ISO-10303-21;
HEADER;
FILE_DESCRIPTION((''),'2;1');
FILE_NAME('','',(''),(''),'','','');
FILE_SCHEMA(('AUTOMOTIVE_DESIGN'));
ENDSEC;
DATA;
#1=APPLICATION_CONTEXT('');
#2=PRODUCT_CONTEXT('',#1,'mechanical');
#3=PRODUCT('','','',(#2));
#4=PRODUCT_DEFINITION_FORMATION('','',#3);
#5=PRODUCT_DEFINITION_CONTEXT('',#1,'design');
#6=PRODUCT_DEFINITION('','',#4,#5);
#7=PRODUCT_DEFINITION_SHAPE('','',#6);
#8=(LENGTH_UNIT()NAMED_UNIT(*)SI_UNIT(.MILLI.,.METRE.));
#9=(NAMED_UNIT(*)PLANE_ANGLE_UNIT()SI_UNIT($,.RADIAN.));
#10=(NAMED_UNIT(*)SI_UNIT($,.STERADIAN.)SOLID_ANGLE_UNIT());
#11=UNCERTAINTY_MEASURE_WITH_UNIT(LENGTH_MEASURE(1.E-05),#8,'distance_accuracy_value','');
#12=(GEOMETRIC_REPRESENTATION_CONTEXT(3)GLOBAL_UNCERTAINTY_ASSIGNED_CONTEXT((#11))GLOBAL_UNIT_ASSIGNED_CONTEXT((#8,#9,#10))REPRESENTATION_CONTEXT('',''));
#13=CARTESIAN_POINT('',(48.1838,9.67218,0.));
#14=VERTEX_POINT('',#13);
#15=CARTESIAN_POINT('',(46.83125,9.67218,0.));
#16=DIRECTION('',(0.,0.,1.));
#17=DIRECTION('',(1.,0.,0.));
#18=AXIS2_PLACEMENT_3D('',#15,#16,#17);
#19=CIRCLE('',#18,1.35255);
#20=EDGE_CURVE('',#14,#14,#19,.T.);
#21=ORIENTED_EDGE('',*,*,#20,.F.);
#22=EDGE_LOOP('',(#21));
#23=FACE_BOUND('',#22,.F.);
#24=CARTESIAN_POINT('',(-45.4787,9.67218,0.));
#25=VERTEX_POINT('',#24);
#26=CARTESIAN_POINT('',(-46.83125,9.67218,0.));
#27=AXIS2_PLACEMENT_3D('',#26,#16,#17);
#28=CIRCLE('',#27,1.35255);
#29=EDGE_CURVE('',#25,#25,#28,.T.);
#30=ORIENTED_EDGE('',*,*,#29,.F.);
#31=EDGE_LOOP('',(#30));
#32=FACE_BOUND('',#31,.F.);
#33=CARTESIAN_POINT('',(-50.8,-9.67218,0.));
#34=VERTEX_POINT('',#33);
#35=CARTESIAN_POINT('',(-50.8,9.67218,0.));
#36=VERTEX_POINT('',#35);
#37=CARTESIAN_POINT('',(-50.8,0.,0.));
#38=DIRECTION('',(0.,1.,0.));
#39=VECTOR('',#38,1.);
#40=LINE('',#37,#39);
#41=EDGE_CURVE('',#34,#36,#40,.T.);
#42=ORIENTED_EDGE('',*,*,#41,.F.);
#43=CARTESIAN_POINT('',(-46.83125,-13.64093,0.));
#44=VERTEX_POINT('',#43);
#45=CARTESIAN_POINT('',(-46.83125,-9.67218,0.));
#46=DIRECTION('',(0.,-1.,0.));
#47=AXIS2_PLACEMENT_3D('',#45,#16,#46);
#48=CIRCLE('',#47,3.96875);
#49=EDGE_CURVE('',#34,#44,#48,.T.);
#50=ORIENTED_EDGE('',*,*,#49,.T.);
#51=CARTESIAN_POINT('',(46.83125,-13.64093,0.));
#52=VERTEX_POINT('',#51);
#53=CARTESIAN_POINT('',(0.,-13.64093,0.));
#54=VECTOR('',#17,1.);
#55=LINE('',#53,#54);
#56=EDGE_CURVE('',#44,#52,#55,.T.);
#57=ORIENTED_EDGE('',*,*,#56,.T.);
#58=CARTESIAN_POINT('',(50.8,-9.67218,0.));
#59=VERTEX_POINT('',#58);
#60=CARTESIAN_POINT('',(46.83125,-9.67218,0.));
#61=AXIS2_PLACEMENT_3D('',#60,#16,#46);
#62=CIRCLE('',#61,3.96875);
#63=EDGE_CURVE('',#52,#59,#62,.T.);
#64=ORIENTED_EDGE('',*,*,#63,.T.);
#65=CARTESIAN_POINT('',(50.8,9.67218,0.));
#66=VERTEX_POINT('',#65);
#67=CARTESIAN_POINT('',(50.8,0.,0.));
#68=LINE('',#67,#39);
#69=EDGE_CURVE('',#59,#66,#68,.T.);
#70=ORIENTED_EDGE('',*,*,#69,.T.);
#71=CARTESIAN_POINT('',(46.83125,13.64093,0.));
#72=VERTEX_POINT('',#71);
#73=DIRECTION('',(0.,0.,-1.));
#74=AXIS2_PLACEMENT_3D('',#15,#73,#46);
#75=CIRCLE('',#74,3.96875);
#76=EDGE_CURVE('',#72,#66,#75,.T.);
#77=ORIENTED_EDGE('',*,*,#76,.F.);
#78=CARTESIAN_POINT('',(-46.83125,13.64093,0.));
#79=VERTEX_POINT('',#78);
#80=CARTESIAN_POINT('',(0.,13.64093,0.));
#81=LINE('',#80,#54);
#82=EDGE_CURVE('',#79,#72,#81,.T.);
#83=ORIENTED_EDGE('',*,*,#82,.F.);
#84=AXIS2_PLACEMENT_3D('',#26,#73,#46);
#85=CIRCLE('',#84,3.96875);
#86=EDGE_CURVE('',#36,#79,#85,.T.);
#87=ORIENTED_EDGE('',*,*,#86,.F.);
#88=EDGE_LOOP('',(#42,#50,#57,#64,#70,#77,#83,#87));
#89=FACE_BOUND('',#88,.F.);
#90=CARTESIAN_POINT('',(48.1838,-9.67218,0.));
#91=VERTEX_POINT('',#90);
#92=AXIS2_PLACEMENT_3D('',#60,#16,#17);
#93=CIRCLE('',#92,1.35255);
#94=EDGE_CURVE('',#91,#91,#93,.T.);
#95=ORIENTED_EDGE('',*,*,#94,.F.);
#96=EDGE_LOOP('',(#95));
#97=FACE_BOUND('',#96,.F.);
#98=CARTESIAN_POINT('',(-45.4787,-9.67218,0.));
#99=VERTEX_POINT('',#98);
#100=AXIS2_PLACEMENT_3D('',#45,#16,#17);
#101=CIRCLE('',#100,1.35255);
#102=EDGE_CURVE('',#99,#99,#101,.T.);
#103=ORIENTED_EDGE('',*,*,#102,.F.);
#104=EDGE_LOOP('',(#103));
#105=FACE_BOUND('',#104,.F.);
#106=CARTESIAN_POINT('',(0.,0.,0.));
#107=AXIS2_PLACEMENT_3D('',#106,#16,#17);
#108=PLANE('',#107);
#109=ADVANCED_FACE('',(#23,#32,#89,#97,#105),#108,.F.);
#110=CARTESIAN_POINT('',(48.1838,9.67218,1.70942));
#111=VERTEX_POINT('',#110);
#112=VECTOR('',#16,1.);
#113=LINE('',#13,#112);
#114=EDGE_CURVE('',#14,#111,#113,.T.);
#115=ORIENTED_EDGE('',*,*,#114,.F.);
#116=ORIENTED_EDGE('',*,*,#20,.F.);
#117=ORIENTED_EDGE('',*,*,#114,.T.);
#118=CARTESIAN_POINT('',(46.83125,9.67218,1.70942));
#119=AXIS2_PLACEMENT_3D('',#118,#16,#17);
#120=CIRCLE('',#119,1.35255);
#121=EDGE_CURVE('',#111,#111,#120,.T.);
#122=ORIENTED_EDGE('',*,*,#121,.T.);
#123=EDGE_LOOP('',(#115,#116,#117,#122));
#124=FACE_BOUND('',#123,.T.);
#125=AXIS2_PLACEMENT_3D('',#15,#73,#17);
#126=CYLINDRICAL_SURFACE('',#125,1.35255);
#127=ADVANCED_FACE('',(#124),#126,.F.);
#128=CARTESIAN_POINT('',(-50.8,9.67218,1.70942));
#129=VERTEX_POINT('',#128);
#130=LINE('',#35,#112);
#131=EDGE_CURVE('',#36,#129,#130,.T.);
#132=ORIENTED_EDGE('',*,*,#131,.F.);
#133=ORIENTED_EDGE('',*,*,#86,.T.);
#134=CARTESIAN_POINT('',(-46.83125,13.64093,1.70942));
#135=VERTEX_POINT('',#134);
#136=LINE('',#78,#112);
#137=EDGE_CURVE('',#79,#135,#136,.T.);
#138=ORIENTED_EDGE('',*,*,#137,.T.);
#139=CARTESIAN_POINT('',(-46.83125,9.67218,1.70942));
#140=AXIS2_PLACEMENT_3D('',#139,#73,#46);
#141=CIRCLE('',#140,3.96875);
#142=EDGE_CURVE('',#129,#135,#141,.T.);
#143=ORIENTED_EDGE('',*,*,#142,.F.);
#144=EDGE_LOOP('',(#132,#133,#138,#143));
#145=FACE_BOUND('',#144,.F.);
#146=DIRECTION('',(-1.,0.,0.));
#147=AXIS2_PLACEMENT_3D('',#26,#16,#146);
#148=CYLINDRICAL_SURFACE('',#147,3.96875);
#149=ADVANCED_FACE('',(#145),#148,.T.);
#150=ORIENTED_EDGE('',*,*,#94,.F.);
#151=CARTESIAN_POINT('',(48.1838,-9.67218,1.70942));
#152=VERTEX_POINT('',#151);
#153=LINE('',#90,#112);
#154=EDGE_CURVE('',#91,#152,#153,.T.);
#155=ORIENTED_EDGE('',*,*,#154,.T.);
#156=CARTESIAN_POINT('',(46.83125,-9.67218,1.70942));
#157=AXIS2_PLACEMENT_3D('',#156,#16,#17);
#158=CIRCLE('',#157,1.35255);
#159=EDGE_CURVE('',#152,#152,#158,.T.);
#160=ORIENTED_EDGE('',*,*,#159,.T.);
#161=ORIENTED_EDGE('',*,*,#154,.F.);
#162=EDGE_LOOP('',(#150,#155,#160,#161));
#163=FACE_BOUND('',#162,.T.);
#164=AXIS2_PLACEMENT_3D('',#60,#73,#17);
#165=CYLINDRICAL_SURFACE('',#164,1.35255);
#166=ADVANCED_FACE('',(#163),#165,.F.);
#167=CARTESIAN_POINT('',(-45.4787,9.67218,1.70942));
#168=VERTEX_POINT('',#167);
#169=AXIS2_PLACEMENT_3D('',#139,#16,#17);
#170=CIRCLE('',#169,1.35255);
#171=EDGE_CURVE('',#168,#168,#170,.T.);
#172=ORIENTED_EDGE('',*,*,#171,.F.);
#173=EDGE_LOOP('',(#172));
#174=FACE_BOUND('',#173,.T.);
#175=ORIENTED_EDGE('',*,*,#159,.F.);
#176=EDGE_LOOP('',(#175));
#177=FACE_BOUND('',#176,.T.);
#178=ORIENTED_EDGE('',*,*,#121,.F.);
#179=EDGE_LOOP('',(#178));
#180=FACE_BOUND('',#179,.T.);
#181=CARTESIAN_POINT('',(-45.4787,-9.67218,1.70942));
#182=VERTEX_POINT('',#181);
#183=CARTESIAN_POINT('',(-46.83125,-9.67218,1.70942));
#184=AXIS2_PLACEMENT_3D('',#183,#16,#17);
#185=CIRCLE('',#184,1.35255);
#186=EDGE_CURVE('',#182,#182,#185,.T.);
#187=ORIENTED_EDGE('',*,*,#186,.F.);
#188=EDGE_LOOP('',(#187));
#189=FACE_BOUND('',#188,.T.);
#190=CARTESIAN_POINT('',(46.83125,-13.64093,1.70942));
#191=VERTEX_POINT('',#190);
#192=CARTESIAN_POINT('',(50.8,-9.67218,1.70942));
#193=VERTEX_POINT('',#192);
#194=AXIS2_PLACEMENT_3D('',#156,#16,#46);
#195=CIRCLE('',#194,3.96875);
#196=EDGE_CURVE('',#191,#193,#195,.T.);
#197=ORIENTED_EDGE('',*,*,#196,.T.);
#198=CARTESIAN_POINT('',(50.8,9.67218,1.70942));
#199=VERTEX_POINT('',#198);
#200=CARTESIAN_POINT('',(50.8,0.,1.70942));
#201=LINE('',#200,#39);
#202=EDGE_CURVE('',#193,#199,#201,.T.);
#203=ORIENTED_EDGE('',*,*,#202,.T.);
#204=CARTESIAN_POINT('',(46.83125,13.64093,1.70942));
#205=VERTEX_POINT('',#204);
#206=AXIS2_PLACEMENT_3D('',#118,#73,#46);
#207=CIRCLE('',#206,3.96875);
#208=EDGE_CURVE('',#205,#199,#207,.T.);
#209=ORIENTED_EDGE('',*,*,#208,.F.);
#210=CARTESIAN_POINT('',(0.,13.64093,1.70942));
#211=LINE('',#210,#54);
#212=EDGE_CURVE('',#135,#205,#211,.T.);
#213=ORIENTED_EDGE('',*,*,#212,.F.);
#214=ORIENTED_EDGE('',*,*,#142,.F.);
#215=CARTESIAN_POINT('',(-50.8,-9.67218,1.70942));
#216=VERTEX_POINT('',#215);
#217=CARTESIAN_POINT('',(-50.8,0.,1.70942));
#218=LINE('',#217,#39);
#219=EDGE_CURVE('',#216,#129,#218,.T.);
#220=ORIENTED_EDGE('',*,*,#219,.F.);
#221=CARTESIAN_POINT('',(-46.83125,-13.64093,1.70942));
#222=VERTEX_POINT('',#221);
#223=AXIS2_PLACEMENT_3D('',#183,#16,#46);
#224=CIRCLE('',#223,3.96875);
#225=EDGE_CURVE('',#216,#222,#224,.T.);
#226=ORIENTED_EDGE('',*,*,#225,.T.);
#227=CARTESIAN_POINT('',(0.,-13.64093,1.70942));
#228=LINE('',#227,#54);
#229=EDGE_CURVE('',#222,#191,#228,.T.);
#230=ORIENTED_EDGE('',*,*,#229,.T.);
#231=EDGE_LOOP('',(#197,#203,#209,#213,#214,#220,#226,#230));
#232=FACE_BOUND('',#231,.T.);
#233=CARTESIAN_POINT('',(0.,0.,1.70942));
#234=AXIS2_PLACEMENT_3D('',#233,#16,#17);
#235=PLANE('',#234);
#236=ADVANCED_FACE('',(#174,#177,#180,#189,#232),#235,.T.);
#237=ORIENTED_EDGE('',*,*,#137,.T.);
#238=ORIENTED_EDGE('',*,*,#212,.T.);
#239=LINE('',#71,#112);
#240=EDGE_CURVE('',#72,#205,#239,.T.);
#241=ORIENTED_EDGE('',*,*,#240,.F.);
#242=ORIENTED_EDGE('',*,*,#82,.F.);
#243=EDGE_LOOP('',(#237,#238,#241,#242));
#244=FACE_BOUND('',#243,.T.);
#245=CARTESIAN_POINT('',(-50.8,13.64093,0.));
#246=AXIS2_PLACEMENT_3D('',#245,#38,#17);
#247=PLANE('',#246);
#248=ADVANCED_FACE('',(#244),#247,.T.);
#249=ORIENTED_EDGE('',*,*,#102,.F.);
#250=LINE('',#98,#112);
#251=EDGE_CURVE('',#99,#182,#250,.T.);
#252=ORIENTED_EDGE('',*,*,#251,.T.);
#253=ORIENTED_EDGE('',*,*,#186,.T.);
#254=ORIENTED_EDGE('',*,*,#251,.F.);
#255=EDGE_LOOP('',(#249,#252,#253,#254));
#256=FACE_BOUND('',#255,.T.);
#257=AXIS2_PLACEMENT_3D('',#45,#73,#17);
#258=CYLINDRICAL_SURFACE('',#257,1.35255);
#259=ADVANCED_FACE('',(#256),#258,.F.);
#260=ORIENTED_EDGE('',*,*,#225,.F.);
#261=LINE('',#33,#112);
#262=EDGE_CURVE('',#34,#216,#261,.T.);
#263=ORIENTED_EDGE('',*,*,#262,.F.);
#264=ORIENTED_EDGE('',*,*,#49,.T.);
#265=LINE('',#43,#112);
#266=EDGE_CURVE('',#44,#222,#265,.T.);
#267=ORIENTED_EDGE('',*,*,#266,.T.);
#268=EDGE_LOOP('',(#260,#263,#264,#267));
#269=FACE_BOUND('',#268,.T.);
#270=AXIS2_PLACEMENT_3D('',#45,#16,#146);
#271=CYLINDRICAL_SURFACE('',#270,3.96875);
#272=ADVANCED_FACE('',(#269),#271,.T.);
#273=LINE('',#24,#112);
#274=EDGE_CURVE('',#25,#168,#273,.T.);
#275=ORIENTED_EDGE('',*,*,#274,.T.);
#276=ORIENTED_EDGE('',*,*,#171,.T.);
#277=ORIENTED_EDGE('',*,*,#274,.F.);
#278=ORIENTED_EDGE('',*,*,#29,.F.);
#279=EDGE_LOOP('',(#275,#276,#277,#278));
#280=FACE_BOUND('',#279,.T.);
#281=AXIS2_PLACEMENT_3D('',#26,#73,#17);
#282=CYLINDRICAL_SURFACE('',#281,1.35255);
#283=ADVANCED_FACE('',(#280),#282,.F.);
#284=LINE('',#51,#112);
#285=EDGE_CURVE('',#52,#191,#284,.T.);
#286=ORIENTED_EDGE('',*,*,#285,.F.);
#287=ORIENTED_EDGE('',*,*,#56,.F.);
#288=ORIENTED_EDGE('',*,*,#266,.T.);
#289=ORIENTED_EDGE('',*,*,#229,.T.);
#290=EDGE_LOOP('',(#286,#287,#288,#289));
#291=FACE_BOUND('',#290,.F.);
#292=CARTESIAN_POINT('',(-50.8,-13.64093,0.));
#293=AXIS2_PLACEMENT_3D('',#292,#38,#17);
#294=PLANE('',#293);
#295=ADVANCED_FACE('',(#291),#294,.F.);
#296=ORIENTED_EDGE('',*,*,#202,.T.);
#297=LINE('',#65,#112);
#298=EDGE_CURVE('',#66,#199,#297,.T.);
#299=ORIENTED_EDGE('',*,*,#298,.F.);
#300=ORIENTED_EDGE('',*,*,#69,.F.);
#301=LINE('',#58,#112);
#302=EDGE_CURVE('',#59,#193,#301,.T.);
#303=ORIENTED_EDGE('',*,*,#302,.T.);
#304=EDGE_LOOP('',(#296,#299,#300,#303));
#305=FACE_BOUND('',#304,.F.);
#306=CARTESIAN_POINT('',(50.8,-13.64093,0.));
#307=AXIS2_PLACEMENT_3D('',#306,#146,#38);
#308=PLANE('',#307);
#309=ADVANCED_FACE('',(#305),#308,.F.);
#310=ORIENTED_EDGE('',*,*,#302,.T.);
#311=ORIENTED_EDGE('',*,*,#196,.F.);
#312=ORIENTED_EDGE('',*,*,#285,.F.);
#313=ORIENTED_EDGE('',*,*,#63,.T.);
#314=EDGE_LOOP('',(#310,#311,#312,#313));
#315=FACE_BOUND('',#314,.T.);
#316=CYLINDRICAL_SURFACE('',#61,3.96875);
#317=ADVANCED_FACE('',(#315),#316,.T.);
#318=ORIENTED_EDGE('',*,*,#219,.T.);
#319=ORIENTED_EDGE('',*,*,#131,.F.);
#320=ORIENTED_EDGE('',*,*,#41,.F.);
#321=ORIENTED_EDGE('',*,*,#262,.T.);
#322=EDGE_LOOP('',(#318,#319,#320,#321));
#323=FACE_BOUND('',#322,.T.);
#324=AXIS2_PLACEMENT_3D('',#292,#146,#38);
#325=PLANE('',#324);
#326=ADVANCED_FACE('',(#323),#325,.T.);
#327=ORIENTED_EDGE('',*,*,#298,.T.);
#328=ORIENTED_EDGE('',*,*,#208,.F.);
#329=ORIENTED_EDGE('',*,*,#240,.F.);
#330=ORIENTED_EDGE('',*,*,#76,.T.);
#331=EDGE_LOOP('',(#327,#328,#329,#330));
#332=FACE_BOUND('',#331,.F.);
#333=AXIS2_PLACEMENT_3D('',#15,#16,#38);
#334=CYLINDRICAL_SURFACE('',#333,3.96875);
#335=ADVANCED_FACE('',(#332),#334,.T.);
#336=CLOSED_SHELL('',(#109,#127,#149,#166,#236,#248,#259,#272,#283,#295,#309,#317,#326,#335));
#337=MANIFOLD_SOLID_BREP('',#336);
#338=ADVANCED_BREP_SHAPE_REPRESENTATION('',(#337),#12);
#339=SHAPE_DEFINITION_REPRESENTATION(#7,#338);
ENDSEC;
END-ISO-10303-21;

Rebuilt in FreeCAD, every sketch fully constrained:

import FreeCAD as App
import Part
import Sketcher

V = App.Vector
Q = App.Units.Quantity


def edges_at(feature, points):
    """Names of the edges that pass closest to the given points."""
    edges = feature.Shape.Edges
    near = lambda p: min(range(len(edges)), key=lambda i: edges[i].distToShape(Part.Vertex(*p))[0])
    return sorted({f"Edge{near(p) + 1}" for p in points})


def add_polygon(sketch, points):
    """Adds a closed chain of lines whose ends are joined by coincident constraints."""
    first, n = sketch.GeometryCount, len(points)
    for a, b in zip(points, points[1:] + points[:1]):
        sketch.addGeometry(Part.LineSegment(App.Vector(*a, 0), App.Vector(*b, 0)), False)
    for i in range(n):
        sketch.addConstraint(Sketcher.Constraint("Coincident", first + i, 2, first + (i + 1) % n, 1))

doc = App.newDocument("Part")
body = doc.addObject("PartDesign::Body", "Body")

# Sketch on XY plane
sketch1 = body.newObject("Sketcher::SketchObject", "Sketch")
sketch1.AttachmentSupport = (doc.getObject("XY_Plane"), [""])
sketch1.MapMode = "FlatFace"
add_polygon(sketch1, [(-50.8, 13.6), (-50.8, -13.6), (50.8, -13.6), (50.8, 13.6)])  # lines 0-3
sketch1.addGeometry(Part.Circle(V(-46.8, -9.7, 0), V(0, 0, 1), 1.4), False)  # 4
sketch1.addGeometry(Part.Circle(V(46.8, -9.7, 0), V(0, 0, 1), 1.4), False)  # 5
sketch1.addGeometry(Part.Circle(V(-46.8, 9.7, 0), V(0, 0, 1), 1.4), False)  # 6
sketch1.addGeometry(Part.Circle(V(46.8, 9.7, 0), V(0, 0, 1), 1.4), False)  # 7
sketch1.addConstraint([
    Sketcher.Constraint("Vertical", 0),
    Sketcher.Constraint("Horizontal", 1),
    Sketcher.Constraint("Vertical", 2),
    Sketcher.Constraint("Horizontal", 3),
    Sketcher.Constraint("Equal", 4, 5),
    Sketcher.Constraint("Equal", 5, 6),
    Sketcher.Constraint("Equal", 6, 7),
    Sketcher.Constraint("Symmetric", 5, 3, 6, 3, -1, 1),
    Sketcher.Constraint("Symmetric", 4, 3, 7, 3, -1, 1),
    Sketcher.Constraint("Symmetric", 0, 2, 2, 2, -1, 1),
    Sketcher.Constraint("Symmetric", 4, 3, 5, 3, -2),
    Sketcher.Constraint("DistanceX", 1, 1, 1, 2, Q("4 in")),
    Sketcher.Constraint("Diameter", 4, Q("0.1065 in")),
    Sketcher.Constraint("DistanceX", 4, 3, -1, 1, Q("1.84375 in")),
    Sketcher.Constraint("DistanceY", 0, 2, 4, 3, Q("0.15625 in")),
    Sketcher.Constraint("DistanceY", 0, 2, 0, 1, Q("27.28186 mm")),
])
pad1 = body.newObject("PartDesign::Pad", "Pad")
pad1.Profile = sketch1
pad1.Length = Q("0.0673 in")
doc.recompute()

fillet = body.newObject("PartDesign::Fillet", "Fillet")
fillet.Base = (pad1, edges_at(pad1, [
    (-50.8, 13.641, 0.855),
    (-50.8, -13.641, 0.855),
    (50.8, -13.641, 0.855),
    (50.8, 13.641, 0.855),
]))
fillet.Radius = Q("0.15625 in")

doc.recompute()
